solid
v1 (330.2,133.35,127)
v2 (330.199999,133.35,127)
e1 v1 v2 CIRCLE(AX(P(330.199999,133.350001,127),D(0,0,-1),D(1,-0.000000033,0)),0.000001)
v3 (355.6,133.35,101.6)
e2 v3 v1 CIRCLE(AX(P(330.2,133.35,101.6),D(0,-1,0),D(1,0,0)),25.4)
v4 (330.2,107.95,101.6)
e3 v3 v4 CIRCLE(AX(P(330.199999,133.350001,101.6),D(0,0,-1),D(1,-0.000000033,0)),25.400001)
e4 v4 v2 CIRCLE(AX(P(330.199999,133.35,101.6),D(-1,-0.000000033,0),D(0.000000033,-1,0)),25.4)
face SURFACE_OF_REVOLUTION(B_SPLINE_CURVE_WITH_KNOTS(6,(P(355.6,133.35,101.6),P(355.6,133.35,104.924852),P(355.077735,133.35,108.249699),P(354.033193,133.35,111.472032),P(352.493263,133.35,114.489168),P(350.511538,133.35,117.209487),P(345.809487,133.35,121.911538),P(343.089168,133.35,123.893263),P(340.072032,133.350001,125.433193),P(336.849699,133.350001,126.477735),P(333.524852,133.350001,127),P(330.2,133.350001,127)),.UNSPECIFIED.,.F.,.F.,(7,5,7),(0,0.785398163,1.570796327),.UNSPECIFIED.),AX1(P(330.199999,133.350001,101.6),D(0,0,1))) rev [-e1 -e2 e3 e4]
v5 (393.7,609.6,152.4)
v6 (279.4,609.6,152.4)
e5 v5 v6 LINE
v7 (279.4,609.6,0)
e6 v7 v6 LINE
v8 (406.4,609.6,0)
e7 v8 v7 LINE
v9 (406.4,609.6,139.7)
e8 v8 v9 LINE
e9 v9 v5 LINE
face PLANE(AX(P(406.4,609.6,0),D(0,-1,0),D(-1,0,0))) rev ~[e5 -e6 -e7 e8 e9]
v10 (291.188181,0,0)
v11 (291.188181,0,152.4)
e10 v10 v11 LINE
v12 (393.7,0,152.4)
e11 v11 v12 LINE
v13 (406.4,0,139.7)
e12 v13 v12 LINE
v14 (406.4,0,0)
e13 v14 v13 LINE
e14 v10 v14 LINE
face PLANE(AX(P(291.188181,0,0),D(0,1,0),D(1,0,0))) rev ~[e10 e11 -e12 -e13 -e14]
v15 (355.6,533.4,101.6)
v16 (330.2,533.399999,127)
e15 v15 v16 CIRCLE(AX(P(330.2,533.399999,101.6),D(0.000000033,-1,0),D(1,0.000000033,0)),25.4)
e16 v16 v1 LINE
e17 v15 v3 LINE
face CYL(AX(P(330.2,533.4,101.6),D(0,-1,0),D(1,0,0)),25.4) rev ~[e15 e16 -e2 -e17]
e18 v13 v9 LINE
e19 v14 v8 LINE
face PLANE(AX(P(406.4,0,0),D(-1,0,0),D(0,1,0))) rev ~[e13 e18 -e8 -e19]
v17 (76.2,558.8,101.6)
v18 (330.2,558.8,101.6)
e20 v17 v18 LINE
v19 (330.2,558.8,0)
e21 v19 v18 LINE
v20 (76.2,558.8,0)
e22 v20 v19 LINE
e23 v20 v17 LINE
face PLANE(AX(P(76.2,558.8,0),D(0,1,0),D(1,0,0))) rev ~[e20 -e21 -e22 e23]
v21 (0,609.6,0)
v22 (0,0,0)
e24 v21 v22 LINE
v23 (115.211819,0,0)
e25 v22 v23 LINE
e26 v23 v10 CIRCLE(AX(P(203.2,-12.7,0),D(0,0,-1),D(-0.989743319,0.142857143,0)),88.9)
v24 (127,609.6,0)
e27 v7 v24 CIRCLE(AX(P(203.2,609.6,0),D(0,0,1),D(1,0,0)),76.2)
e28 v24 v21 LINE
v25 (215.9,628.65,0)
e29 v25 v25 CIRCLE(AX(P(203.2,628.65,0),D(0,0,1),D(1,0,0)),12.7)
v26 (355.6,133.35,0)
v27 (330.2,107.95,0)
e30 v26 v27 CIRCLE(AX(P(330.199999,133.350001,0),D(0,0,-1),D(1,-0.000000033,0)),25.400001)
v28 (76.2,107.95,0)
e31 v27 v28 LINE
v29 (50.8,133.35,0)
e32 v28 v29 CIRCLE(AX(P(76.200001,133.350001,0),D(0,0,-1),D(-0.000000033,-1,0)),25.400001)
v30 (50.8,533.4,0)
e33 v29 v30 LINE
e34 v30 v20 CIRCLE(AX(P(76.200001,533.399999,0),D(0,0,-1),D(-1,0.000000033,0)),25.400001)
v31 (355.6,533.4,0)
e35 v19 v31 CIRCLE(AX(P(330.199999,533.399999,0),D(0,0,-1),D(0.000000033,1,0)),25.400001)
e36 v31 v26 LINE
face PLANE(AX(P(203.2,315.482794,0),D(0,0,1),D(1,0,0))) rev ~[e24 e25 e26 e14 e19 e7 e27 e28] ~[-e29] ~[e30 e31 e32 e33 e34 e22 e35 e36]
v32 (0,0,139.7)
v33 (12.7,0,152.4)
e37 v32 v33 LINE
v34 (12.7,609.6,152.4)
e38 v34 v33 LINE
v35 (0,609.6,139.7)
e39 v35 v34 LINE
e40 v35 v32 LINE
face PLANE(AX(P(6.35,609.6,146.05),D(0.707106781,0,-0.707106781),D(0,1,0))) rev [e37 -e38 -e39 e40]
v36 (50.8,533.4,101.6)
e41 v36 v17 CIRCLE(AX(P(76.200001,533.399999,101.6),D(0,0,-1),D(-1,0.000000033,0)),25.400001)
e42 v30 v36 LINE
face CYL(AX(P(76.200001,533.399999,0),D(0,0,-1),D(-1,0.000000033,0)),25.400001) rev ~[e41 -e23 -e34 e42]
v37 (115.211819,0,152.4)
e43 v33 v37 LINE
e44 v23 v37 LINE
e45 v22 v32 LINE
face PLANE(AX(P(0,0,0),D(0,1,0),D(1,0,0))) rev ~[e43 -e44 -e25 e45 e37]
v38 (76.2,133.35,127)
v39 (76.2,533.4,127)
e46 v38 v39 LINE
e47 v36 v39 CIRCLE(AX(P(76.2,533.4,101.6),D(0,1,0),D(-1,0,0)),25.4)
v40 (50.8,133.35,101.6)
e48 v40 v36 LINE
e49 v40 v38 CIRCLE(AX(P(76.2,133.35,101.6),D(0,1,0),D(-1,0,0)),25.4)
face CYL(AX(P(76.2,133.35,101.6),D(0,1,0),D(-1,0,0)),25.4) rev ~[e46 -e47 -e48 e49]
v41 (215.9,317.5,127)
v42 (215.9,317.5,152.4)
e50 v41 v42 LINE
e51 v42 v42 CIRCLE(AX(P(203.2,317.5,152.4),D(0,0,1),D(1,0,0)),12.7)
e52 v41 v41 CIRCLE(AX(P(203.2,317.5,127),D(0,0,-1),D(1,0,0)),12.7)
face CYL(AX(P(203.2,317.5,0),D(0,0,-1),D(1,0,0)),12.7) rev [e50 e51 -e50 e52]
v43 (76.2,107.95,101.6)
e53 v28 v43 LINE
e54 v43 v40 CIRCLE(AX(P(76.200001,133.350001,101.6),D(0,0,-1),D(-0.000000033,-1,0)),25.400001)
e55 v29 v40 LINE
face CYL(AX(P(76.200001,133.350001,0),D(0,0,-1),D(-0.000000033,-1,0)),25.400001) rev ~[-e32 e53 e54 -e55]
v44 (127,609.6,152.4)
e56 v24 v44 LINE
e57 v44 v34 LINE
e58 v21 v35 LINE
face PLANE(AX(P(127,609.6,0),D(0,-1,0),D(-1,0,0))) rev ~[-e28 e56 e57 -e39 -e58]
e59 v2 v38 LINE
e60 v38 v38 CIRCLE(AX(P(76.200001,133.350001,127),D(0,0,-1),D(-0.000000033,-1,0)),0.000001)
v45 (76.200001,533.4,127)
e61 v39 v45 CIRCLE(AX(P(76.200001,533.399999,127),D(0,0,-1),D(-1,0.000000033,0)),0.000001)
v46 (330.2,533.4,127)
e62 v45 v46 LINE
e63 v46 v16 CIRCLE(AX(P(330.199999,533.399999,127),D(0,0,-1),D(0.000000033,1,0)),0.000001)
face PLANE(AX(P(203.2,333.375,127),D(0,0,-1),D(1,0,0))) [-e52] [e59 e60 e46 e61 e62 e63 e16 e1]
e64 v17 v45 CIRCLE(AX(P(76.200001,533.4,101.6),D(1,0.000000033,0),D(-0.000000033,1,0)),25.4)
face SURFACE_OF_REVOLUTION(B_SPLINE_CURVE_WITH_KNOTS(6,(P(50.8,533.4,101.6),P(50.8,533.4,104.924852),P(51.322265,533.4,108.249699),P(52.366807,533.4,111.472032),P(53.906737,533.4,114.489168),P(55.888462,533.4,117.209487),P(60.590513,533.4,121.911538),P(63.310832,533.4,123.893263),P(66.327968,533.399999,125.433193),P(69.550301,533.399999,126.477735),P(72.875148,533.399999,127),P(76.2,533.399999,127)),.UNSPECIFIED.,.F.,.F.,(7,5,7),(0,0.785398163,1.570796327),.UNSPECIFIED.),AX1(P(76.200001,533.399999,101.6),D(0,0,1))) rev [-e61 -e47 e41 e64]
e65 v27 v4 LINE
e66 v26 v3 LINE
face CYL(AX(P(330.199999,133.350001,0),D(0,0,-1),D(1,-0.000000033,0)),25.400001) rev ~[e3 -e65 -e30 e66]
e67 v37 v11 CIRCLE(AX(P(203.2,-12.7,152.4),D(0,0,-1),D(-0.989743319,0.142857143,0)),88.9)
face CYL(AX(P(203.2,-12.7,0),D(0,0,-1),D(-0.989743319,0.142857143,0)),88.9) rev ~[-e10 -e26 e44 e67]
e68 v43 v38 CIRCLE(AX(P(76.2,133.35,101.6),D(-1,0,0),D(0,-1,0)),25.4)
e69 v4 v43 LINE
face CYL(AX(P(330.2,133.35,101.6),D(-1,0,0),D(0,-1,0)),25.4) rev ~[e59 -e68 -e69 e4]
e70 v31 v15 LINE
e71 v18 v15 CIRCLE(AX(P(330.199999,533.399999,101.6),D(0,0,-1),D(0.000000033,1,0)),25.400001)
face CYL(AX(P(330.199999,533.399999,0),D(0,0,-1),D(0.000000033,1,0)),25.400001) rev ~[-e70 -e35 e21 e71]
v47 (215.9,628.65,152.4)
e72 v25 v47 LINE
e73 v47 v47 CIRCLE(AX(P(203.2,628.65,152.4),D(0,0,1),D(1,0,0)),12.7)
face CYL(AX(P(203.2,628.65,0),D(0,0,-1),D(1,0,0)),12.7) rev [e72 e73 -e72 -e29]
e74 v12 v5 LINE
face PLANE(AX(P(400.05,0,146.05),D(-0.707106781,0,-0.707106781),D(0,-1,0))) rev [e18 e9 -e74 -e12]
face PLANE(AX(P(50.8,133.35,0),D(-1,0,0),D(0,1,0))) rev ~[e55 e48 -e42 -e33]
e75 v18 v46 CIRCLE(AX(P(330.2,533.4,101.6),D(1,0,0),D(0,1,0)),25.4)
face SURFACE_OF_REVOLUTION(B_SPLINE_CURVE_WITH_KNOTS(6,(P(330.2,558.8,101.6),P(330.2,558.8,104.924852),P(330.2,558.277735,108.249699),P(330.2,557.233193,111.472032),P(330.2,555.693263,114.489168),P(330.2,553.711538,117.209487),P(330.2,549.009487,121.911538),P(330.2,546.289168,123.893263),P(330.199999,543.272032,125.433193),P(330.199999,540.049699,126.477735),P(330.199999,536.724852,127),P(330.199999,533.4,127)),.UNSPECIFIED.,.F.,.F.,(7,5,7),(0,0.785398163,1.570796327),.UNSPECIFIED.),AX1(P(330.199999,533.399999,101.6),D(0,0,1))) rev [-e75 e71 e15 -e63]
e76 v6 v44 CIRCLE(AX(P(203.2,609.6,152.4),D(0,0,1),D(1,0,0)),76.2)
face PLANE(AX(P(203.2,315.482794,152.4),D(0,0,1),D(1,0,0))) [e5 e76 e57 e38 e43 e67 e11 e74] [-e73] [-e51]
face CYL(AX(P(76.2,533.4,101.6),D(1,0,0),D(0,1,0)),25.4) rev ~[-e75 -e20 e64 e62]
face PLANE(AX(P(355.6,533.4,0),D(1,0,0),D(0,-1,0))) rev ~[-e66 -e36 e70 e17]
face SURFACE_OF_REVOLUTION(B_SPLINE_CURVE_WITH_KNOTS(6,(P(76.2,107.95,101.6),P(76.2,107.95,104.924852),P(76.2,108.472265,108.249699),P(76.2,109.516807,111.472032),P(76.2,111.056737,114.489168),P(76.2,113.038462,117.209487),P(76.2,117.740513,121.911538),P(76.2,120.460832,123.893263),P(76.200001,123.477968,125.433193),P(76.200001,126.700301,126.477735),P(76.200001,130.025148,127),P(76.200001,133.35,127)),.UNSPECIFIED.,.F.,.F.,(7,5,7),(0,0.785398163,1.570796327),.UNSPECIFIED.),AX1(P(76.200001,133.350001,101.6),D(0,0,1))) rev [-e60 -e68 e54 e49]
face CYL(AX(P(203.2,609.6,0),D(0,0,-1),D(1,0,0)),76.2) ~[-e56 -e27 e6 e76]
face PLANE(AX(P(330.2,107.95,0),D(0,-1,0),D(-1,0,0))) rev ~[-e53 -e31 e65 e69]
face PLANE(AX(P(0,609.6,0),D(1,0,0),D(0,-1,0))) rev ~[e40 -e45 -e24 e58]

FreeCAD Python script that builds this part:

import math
import FreeCAD as App
import Part
import Sketcher
from FreeCAD import Vector
Q = App.Units.Quantity


def edges_at(feature, points):
    """Names of the edges that pass closest to the given points."""
    edges = feature.Shape.Edges
    near = lambda p: min(range(len(edges)), key=lambda i: edges[i].distToShape(Part.Vertex(*p))[0])
    return sorted({f"Edge{near(p) + 1}" for p in points})

doc = App.newDocument("Part")
body = doc.addObject("PartDesign::Body", "Body")

# Sketch on XY plane
sketch1 = body.newObject("Sketcher::SketchObject", "Sketch")
sketch1.AttachmentSupport = (doc.getObject("XY_Plane"), [""])
sketch1.MapMode = "FlatFace"
sketch1.addGeometry([
    Part.LineSegment(Vector(127, 610, 0), Vector(0, 610, 0)),  # 0
    Part.LineSegment(Vector(0, 610, 0), Vector(0, 0, 0)),  # 1
    Part.LineSegment(Vector(0, 0, 0), Vector(115, 0, 0)),  # 2
    Part.ArcOfCircle(Part.Circle(Vector(203, -13, 0), Vector(0, 0, 1), 89), math.radians(8), math.radians(172)),  # 3
    Part.LineSegment(Vector(291, 0, 0), Vector(406, 0, 0)),  # 4
    Part.LineSegment(Vector(406, 0, 0), Vector(406, 610, 0)),  # 5
    Part.LineSegment(Vector(406, 610, 0), Vector(279, 610, 0)),  # 6
    Part.ArcOfCircle(Part.Circle(Vector(203, 610, 0), Vector(0, 0, 1), 76), math.radians(0), math.radians(180)),  # 7
    Part.Circle(Vector(203, 318, 0), Vector(0, 0, 1), 13),  # 8
    Part.Circle(Vector(203, 629, 0), Vector(0, 0, 1), 13),  # 9
], False)
sketch1.addConstraint([
    Sketcher.Constraint("Coincident", 0, 2, 1, 1),
    Sketcher.Constraint("Coincident", 1, 2, 2, 1),
    Sketcher.Constraint("Coincident", 2, 2, 3, 2),
    Sketcher.Constraint("Coincident", 3, 1, 4, 1),
    Sketcher.Constraint("Coincident", 4, 2, 5, 1),
    Sketcher.Constraint("Coincident", 5, 2, 6, 1),
    Sketcher.Constraint("Coincident", 6, 2, 7, 1),
    Sketcher.Constraint("Coincident", 7, 2, 0, 1),
    Sketcher.Constraint("Horizontal", 0),
    Sketcher.Constraint("Vertical", 1),
    Sketcher.Constraint("Horizontal", 2),
    Sketcher.Constraint("Horizontal", 4),
    Sketcher.Constraint("Vertical", 5),
    Sketcher.Constraint("Horizontal", 6),
    Sketcher.Constraint("Coincident", 1, 2, -1, 1),
    Sketcher.Constraint("Equal", 8, 9),
    Sketcher.Constraint("PointOnObject", 3, 1, -1),
    Sketcher.Constraint("Horizontal", 7, 3, 0, 2),
    Sketcher.Constraint("Horizontal", 0, 2, 5, 2),
    Sketcher.Constraint("Vertical", 3, 3, 7, 3),
    Sketcher.Constraint("Vertical", 7, 3, 8, 3),
    Sketcher.Constraint("Vertical", 8, 3, 9, 3),
    Sketcher.Constraint("Equal", 2, 4),
    Sketcher.Constraint("Diameter", 8, Q("1 in")),
    Sketcher.Constraint("Radius", 7, Q("3 in")),
    Sketcher.Constraint("Radius", 3, Q("3.5 in")),
    Sketcher.Constraint("DistanceX", 0, 2, 0, 1, Q("5 in")),
    Sketcher.Constraint("DistanceY", 1, 2, 1, 1, Q("24 in")),
    Sketcher.Constraint("DistanceY", 3, 3, 8, 3, Q("13 in")),
    Sketcher.Constraint("DistanceY", 3, 3, -1, 1, Q("0.5 in")),
    Sketcher.Constraint("DistanceY", -1, 1, 9, 3, Q("24.75 in")),
])
pad1 = body.newObject("PartDesign::Pad", "Pad")
pad1.Profile = sketch1
pad1.Length = Q("6 in")

# Sketch on XY plane
sketch2 = body.newObject("Sketcher::SketchObject", "Sketch001")
sketch2.AttachmentSupport = (doc.getObject("XY_Plane"), [""])
sketch2.MapMode = "FlatFace"
sketch2.addGeometry([
    Part.ArcOfCircle(Part.Circle(Vector(76, 133, 0), Vector(0, 0, 1), 25), math.radians(-180), math.radians(-90)),  # 0
    Part.LineSegment(Vector(51, 133, 0), Vector(51, 533, 0)),  # 1
    Part.ArcOfCircle(Part.Circle(Vector(76, 533, 0), Vector(0, 0, 1), 25), math.radians(90), math.radians(180)),  # 2
    Part.LineSegment(Vector(76, 559, 0), Vector(330, 559, 0)),  # 3
    Part.ArcOfCircle(Part.Circle(Vector(330, 533, 0), Vector(0, 0, 1), 25), math.radians(0), math.radians(90)),  # 4
    Part.LineSegment(Vector(356, 533, 0), Vector(356, 133, 0)),  # 5
    Part.ArcOfCircle(Part.Circle(Vector(330, 133, 0), Vector(0, 0, 1), 25), math.radians(-90), math.radians(0)),  # 6
    Part.LineSegment(Vector(330, 108, 0), Vector(76, 108, 0)),  # 7
], False)
sketch2.addConstraint([
    Sketcher.Constraint("Tangent", 0, 1, 1, 1),
    Sketcher.Constraint("Tangent", 1, 2, 2, 2),
    Sketcher.Constraint("Tangent", 2, 1, 3, 1),
    Sketcher.Constraint("Tangent", 3, 2, 4, 2),
    Sketcher.Constraint("Tangent", 4, 1, 5, 1),
    Sketcher.Constraint("Tangent", 5, 2, 6, 2),
    Sketcher.Constraint("Tangent", 6, 1, 7, 1),
    Sketcher.Constraint("Tangent", 7, 2, 0, 2),
    Sketcher.Constraint("Vertical", 1),
    Sketcher.Constraint("Horizontal", 3),
    Sketcher.Constraint("Vertical", 5),
    Sketcher.Constraint("Horizontal", 7),
    Sketcher.Constraint("Equal", 0, 2),
    Sketcher.Constraint("Equal", 2, 4),
    Sketcher.Constraint("Equal", 4, 6),
    Sketcher.Constraint("Radius", 0, Q("1 in")),
    Sketcher.Constraint("DistanceX", 3, 1, 3, 2, Q("10 in")),
    Sketcher.Constraint("DistanceX", -1, 1, 0, 3, Q("3 in")),
    Sketcher.Constraint("DistanceY", -1, 1, 2, 3, Q("21 in")),
    Sketcher.Constraint("DistanceY", 1, 1, 1, 2, Q("15.75 in")),
])
pocket1 = body.newObject("PartDesign::Pocket", "Pocket")
pocket1.Profile = sketch2
pocket1.Length = Q("5 in")
pocket1.Reversed = True
doc.recompute()

fillet = body.newObject("PartDesign::Fillet", "Fillet")
fillet.Base = (pocket1, edges_at(pocket1, [(50.8, 333.375, 127)]))
fillet.Radius = Q("1 in")
doc.recompute()

chamfer = body.newObject("PartDesign::Chamfer", "Chamfer")
chamfer.Base = (fillet, edges_at(fillet, [(406.4, 304.8, 152.4), (0, 304.8, 152.4)]))
chamfer.Size = Q("0.5 in")

doc.recompute()
